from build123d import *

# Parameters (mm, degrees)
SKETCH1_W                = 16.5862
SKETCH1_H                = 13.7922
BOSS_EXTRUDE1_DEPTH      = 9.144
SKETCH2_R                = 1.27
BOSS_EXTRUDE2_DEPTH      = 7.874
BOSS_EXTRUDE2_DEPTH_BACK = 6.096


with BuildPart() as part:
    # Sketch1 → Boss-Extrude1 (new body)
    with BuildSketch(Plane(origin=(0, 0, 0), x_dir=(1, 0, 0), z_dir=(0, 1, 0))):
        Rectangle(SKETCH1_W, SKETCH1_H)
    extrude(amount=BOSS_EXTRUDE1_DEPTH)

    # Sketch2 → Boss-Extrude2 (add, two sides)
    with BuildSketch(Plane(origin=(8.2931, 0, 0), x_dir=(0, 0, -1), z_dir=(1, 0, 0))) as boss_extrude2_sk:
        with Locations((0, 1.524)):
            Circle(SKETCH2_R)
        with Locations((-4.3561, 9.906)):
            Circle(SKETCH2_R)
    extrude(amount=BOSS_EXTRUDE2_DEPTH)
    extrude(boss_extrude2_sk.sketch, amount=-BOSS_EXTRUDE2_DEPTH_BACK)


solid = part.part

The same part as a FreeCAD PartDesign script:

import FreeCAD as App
import Part
import Sketcher

V = App.Vector
Q = App.Units.Quantity

doc = App.newDocument("Part")
params = doc.addObject("Spreadsheet::Sheet", "Params")
for row, (alias, value) in enumerate([
    ("sketch1_width", "0.653 in"),
    ("sketch1_height", "0.543 in"),
    ("pad1_length", "0.36 in"),
    ("sketch2_diameter", "0.1 in"),
    ("pad2_length", "0.31 in"),
    ("pad2_length2", "0.24 in"),
], start=1):
    params.set(f"A{row}", alias)
    params.set(f"B{row}", "=" + value)
    params.setAlias(f"B{row}", alias)

body = doc.addObject("PartDesign::Body", "Body")

# Sketch on XZ plane
sketch1 = body.newObject("Sketcher::SketchObject", "Sketch")
sketch1.AttachmentSupport = (doc.getObject("XZ_Plane"), [""])
sketch1.MapMode = "FlatFace"
sketch1.addGeometry(Part.LineSegment(V(-8, -7, 0), V(-8, 7, 0)), False)
sketch1.addGeometry(Part.LineSegment(V(-8, 7, 0), V(8, 7, 0)), False)
sketch1.addGeometry(Part.LineSegment(V(8, 7, 0), V(8, -7, 0)), False)
sketch1.addGeometry(Part.LineSegment(V(8, -7, 0), V(-8, -7, 0)), False)
sketch1.addConstraint(Sketcher.Constraint("Coincident", 0, 2, 1, 1))
sketch1.addConstraint(Sketcher.Constraint("Coincident", 1, 2, 2, 1))
sketch1.addConstraint(Sketcher.Constraint("Coincident", 2, 2, 3, 1))
sketch1.addConstraint(Sketcher.Constraint("Coincident", 3, 2, 0, 1))
sketch1.addConstraint(Sketcher.Constraint("Vertical", 0))
sketch1.addConstraint(Sketcher.Constraint("Horizontal", 1))
sketch1.addConstraint(Sketcher.Constraint("Vertical", 2))
sketch1.addConstraint(Sketcher.Constraint("Horizontal", 3))
sketch1.addConstraint(Sketcher.Constraint("Symmetric", 0, 2, 2, 2, -1, 1))
sketch1.addConstraint(Sketcher.Constraint("DistanceX", 1, 1, 1, 2, Q("0.653 in")))
sketch1.addConstraint(Sketcher.Constraint("DistanceY", 0, 1, 0, 2, Q("0.543 in")))
sketch1.setExpression("Constraints[9]", "Params.sketch1_width")
sketch1.setExpression("Constraints[10]", "Params.sketch1_height")
pad1 = body.newObject("PartDesign::Pad", "Pad")
pad1.Profile = sketch1
pad1.setExpression("Length", "Params.pad1_length")
pad1.Reversed = True

# Sketch on YZ plane
sketch2 = body.newObject("Sketcher::SketchObject", "Sketch001")
sketch2.AttachmentSupport = (doc.getObject("YZ_Plane"), [""])
sketch2.MapMode = "FlatFace"
sketch2.AttachmentOffset = App.Placement(V(0, 0, 0.3265 * 25.4), App.Rotation())
sketch2.addGeometry(Part.Circle(V(1.5, 0, 0), V(0, 0, 1), 1.3), False)
sketch2.addGeometry(Part.Circle(V(9.9, 4.4, 0), V(0, 0, 1), 1.3), False)
sketch2.addConstraint(Sketcher.Constraint("Equal", 0, 1))
sketch2.addConstraint(Sketcher.Constraint("PointOnObject", 0, 3, -1))
sketch2.addConstraint(Sketcher.Constraint("Diameter", 0, Q("0.1 in")))
sketch2.addConstraint(Sketcher.Constraint("DistanceX", -1, 1, 0, 3, Q("0.06 in")))
sketch2.addConstraint(Sketcher.Constraint("DistanceX", -1, 1, 1, 3, Q("0.39 in")))
sketch2.addConstraint(Sketcher.Constraint("DistanceY", -1, 1, 1, 3, Q("0.1715 in")))
sketch2.setExpression("Constraints[2]", "Params.sketch2_diameter")
pad2 = body.newObject("PartDesign::Pad", "Pad001")
pad2.Profile = sketch2
pad2.Type = "TwoLengths"
pad2.setExpression("Length", "Params.pad2_length")
pad2.setExpression("Length2", "Params.pad2_length2")

doc.recompute()
